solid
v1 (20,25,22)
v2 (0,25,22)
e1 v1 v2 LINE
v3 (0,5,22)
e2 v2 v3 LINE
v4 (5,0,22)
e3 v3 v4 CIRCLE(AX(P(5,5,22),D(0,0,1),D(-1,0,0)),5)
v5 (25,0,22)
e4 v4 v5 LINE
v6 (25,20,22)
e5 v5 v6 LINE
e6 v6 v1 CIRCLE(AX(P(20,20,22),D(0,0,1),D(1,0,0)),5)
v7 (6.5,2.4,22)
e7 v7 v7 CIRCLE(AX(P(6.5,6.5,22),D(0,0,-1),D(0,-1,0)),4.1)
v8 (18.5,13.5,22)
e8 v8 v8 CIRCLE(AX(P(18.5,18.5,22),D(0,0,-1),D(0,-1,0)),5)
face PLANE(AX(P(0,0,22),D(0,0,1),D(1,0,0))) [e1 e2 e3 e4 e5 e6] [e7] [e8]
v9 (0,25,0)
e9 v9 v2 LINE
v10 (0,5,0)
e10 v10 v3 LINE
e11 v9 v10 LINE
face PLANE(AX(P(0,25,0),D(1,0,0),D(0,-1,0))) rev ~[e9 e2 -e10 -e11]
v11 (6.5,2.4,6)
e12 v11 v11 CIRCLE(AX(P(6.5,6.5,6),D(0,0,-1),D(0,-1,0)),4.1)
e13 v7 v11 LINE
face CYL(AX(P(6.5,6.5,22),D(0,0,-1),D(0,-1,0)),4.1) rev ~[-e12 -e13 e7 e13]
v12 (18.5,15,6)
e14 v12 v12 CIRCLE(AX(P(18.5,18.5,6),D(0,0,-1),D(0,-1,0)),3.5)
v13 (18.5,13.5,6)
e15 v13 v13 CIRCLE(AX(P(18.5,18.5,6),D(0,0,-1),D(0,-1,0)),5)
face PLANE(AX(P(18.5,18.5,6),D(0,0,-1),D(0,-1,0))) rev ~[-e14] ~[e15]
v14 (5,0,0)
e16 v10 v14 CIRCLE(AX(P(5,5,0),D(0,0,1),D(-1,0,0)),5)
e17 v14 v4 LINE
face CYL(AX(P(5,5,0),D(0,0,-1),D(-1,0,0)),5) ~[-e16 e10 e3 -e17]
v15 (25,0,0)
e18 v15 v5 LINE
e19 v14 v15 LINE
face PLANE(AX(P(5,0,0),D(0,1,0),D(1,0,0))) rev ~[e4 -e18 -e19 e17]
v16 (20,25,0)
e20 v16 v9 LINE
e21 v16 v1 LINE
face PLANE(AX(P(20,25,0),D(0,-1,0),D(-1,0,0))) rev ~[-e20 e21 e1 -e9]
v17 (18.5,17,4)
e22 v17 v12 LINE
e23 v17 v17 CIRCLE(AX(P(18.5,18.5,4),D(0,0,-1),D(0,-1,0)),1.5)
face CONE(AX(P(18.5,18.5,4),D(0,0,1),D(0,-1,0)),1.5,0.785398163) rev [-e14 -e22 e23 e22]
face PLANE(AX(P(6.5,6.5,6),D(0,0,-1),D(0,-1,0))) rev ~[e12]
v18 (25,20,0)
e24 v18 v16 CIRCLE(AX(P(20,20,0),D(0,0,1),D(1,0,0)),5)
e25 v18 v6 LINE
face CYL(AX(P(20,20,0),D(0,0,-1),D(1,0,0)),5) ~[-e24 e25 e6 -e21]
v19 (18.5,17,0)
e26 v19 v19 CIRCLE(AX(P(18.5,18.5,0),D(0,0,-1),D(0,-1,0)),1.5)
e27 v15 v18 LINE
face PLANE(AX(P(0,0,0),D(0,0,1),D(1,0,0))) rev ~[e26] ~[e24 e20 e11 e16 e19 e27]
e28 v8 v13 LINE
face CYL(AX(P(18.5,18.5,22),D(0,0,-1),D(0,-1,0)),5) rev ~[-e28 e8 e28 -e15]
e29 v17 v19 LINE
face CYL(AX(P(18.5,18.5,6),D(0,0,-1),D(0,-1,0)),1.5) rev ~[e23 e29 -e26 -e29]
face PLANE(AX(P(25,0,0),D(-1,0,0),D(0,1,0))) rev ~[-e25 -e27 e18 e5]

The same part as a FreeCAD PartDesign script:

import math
import FreeCAD as App
import Part
import Sketcher
from FreeCAD import Vector
Q = App.Units.Quantity


def edges_at(feature, points):
    """Names of the edges that pass closest to the given points."""
    edges = feature.Shape.Edges
    near = lambda p: min(range(len(edges)), key=lambda i: edges[i].distToShape(Part.Vertex(*p))[0])
    return sorted({f"Edge{near(p) + 1}" for p in points})

doc = App.newDocument("Part")
body = doc.addObject("PartDesign::Body", "Body")

# Sketch on XY plane
sketch1 = doc.addObject("Sketcher::SketchObject", "Sketch")
body.addObject(sketch1)
sketch1.AttachmentSupport = (doc.XY_Plane, [""])
sketch1.MapMode = "FlatFace"
sketch1.addGeometry([
    Part.ArcOfCircle(Part.Circle(Vector(5, 5, 0), Vector(0, 0, 1), 5), math.radians(180), math.radians(270)),  # 0
    Part.LineSegment(Vector(5, 0, 0), Vector(25, 0, 0)),  # 1
    Part.LineSegment(Vector(25, 0, 0), Vector(25, 20, 0)),  # 2
    Part.ArcOfCircle(Part.Circle(Vector(20, 20, 0), Vector(0, 0, 1), 5), math.radians(0), math.radians(90)),  # 3
    Part.LineSegment(Vector(20, 25, 0), Vector(0, 25, 0)),  # 4
    Part.LineSegment(Vector(0, 25, 0), Vector(0, 5, 0)),  # 5
], False)
sketch1.addConstraint([
    Sketcher.Constraint("Tangent", 0, 2, 1, 1),
    Sketcher.Constraint("Coincident", 1, 2, 2, 1),
    Sketcher.Constraint("Tangent", 2, 2, 3, 1),
    Sketcher.Constraint("Tangent", 3, 2, 4, 1),
    Sketcher.Constraint("Coincident", 4, 2, 5, 1),
    Sketcher.Constraint("Tangent", 5, 2, 0, 1),
    Sketcher.Constraint("Horizontal", 1),
    Sketcher.Constraint("Vertical", 2),
    Sketcher.Constraint("Horizontal", 4),
    Sketcher.Constraint("Vertical", 5),
    Sketcher.Constraint("Equal", 0, 3),
    Sketcher.Constraint("PointOnObject", 0, 2, -1),
    Sketcher.Constraint("PointOnObject", 4, 2, -2),
    Sketcher.Constraint("Equal", 4, 2),
    Sketcher.Constraint("Radius", 0, Q("5 mm")),
    Sketcher.Constraint("DistanceX", -1, 1, 1, 2, Q("25 mm")),
])
pad1 = doc.addObject("PartDesign::Pad", "Pad")
body.addObject(pad1)
pad1.Profile = sketch1
pad1.Length = 22

# Sketch on XY plane
sketch2 = doc.addObject("Sketcher::SketchObject", "Sketch001")
body.addObject(sketch2)
sketch2.AttachmentSupport = (doc.XY_Plane, [""])
sketch2.MapMode = "FlatFace"
sketch2.AttachmentOffset = App.Placement(Vector(0, 0, 22), App.Rotation())
sketch2.addGeometry(Part.Circle(Vector(18.5, 18.5, 0), Vector(0, 0, 1), 5), False)
sketch2.addConstraint([
    Sketcher.Constraint("Diameter", 0, Q("10 mm")),
    Sketcher.Constraint("DistanceX", -1, 1, 0, 3, Q("18.5 mm")),
    Sketcher.Constraint("DistanceY", -1, 1, 0, 3, Q("18.5 mm")),
])
doc.recompute()
hole = doc.addObject("PartDesign::Hole", "Hole")
body.addObject(hole)
hole.Profile = sketch2
hole.ThreadType = "None"
hole.Diameter = 10
hole.DepthType = "Dimension"
hole.Depth = 16
hole.DrillPoint = "Flat"

# Sketch on XY plane
sketch3 = doc.addObject("Sketcher::SketchObject", "Sketch002")
body.addObject(sketch3)
sketch3.AttachmentSupport = (doc.XY_Plane, [""])
sketch3.MapMode = "FlatFace"
sketch3.AttachmentOffset = App.Placement(Vector(0, 0, 6), App.Rotation())
sketch3.addGeometry(Part.Circle(Vector(18.5, 18.5, 0), Vector(0, 0, 1), 1.5), False)
sketch3.addConstraint([
    Sketcher.Constraint("Diameter", 0, Q("3 mm")),
    Sketcher.Constraint("DistanceX", -1, 1, 0, 3, Q("18.5 mm")),
    Sketcher.Constraint("DistanceY", -1, 1, 0, 3, Q("18.5 mm")),
])
doc.recompute()
hole2 = doc.addObject("PartDesign::Hole", "Hole001")
body.addObject(hole2)
hole2.Profile = sketch3
hole2.ThreadType = "None"
hole2.Diameter = 3
hole2.DepthType = "Dimension"
hole2.Depth = 15
hole2.DrillPoint = "Flat"
doc.recompute()

chamfer = doc.addObject("PartDesign::Chamfer", "Chamfer")
body.addObject(chamfer)
chamfer.Base = (hole2, edges_at(hole2, [(18.5, 20, 6)]))
chamfer.Size = 2

# Sketch on XY plane
sketch4 = doc.addObject("Sketcher::SketchObject", "Sketch003")
body.addObject(sketch4)
sketch4.AttachmentSupport = (doc.XY_Plane, [""])
sketch4.MapMode = "FlatFace"
sketch4.AttachmentOffset = App.Placement(Vector(0, 0, 22), App.Rotation())
sketch4.addGeometry(Part.Circle(Vector(6.5, 6.5, 0), Vector(0, 0, 1), 4.1), False)
sketch4.addConstraint([
    Sketcher.Constraint("Diameter", 0, Q("8.2 mm")),
    Sketcher.Constraint("DistanceX", -1, 1, 0, 3, Q("6.5 mm")),
    Sketcher.Constraint("DistanceY", -1, 1, 0, 3, Q("6.5 mm")),
])
doc.recompute()
hole3 = doc.addObject("PartDesign::Hole", "Hole002")
body.addObject(hole3)
hole3.Profile = sketch4
hole3.ThreadType = "None"
hole3.Diameter = 8.2
hole3.DepthType = "Dimension"
hole3.Depth = 16
hole3.DrillPoint = "Flat"

doc.recompute()
